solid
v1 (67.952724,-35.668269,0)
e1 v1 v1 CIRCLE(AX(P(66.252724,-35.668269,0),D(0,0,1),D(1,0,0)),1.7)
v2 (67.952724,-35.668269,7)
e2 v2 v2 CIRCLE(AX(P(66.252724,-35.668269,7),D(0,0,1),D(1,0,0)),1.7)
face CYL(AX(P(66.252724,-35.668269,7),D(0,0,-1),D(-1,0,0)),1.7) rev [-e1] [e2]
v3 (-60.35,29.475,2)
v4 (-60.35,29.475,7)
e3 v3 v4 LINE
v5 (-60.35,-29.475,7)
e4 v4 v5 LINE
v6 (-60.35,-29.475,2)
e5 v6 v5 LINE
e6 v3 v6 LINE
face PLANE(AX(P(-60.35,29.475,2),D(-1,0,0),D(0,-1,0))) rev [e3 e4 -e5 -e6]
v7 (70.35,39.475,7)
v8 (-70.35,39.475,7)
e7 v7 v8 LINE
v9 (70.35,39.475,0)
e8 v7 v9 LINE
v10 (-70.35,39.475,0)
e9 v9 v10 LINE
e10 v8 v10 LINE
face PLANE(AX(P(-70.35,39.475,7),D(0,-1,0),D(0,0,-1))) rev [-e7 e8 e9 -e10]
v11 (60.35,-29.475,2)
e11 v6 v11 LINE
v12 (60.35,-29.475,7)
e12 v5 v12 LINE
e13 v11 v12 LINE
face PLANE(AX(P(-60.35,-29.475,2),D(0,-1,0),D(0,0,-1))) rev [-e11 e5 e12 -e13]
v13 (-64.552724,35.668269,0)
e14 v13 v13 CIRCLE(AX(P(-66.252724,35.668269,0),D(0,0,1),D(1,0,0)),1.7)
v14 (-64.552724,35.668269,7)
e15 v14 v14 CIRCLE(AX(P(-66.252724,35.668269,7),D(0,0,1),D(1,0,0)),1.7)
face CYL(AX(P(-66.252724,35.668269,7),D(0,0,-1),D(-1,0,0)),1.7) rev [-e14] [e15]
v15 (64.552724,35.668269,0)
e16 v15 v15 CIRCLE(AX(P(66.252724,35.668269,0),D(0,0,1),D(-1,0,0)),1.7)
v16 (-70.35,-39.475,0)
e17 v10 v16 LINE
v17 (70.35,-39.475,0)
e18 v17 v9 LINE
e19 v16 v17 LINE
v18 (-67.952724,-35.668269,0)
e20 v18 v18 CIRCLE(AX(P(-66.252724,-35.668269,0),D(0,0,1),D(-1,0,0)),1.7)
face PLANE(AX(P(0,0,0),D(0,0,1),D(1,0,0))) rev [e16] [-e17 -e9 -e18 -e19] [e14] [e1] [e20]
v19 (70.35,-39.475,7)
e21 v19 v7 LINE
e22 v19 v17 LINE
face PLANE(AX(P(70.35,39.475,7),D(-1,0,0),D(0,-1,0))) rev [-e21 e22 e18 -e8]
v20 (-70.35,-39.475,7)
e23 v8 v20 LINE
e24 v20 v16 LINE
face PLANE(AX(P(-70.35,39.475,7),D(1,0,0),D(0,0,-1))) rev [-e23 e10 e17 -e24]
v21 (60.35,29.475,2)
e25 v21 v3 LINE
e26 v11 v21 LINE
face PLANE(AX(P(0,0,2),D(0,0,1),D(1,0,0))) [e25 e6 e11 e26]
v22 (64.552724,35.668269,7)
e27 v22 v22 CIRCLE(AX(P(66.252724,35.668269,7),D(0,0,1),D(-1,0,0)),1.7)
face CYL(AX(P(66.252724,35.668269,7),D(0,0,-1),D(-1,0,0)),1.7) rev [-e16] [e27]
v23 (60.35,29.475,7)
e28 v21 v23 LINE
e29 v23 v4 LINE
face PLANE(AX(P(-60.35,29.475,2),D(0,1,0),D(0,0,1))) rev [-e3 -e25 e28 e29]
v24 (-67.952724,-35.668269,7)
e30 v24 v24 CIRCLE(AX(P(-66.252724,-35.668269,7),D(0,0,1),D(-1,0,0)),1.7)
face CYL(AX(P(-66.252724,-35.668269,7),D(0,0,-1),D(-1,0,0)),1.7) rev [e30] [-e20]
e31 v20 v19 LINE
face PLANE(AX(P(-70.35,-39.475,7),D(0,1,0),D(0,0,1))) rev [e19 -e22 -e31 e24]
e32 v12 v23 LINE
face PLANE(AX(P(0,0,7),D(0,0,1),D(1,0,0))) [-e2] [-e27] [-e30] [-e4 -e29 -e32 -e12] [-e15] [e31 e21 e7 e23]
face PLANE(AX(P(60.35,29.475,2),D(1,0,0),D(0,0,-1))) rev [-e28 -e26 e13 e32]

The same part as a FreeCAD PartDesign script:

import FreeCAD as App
import Part
import Sketcher
Q = App.Units.Quantity


def add_polygon(sketch, points):
    """Adds a closed chain of lines whose ends are joined by coincident constraints."""
    first, n = sketch.GeometryCount, len(points)
    for a, b in zip(points, points[1:] + points[:1]):
        sketch.addGeometry(Part.LineSegment(App.Vector(*a, 0), App.Vector(*b, 0)), False)
    for i in range(n):
        sketch.addConstraint(Sketcher.Constraint("Coincident", first + i, 2, first + (i + 1) % n, 1))

doc = App.newDocument("Part")
params = doc.addObject("Spreadsheet::Sheet", "Params")
for row, (alias, value) in enumerate([
    ("sketch1_diameter", "3.4 mm"),
    ("sketch1_width", "140.7 mm"),
    ("sketch1_height", "78.95 mm"),
    ("pad1_length", "7 mm"),
    ("sketch2_width", "120.7 mm"),
    ("sketch2_height", "58.95 mm"),
    ("pocket1_length", "5 mm"),
], start=1):
    params.set(f"A{row}", alias)
    params.set(f"B{row}", "=" + value)
    params.setAlias(f"B{row}", alias)

body = doc.addObject("PartDesign::Body", "Body")

# Sketch on XY plane
sketch1 = body.newObject("Sketcher::SketchObject", "Sketch")
sketch1.AttachmentSupport = (doc.getObject("XY_Plane"), [""])
sketch1.MapMode = "FlatFace"
add_polygon(sketch1, [(-70.35, 39.475), (-70.35, -39.475), (70.35, -39.475), (70.35, 39.475)])  # lines 0-3
sketch1.addGeometry(Part.Circle(App.Vector(-66.252724, -35.668269, 0), App.Vector(0, 0, 1), 1.7), False)  # 4
sketch1.addGeometry(Part.Circle(App.Vector(66.252724, -35.668269, 0), App.Vector(0, 0, 1), 1.7), False)  # 5
sketch1.addGeometry(Part.Circle(App.Vector(-66.252724, 35.668269, 0), App.Vector(0, 0, 1), 1.7), False)  # 6
sketch1.addGeometry(Part.Circle(App.Vector(66.252724, 35.668269, 0), App.Vector(0, 0, 1), 1.7), False)  # 7
sketch1.addConstraint([
    Sketcher.Constraint("Vertical", 0),
    Sketcher.Constraint("Horizontal", 1),
    Sketcher.Constraint("Vertical", 2),
    Sketcher.Constraint("Horizontal", 3),
    Sketcher.Constraint("Equal", 4, 5),
    Sketcher.Constraint("Equal", 5, 6),
    Sketcher.Constraint("Equal", 6, 7),
    Sketcher.Constraint("Symmetric", 5, 3, 6, 3, -1, 1),
    Sketcher.Constraint("Symmetric", 4, 3, 7, 3, -1, 1),
    Sketcher.Constraint("Symmetric", 0, 2, 2, 2, -1, 1),
    Sketcher.Constraint("Symmetric", 4, 3, 5, 3, -2),
    Sketcher.Constraint("Diameter", 4, Q("3.4 mm")),
    Sketcher.Constraint("DistanceX", 1, 1, 1, 2, Q("140.7 mm")),
    Sketcher.Constraint("DistanceY", 0, 2, 0, 1, Q("78.95 mm")),
    Sketcher.Constraint("DistanceY", 4, 3, -1, 1, Q("35.668269 mm")),
    Sketcher.Constraint("DistanceX", 4, 3, -1, 1, Q("66.252724 mm")),
])
sketch1.setExpression("Constraints[15]", "Params.sketch1_diameter")
sketch1.setExpression("Constraints[16]", "Params.sketch1_width")
sketch1.setExpression("Constraints[17]", "Params.sketch1_height")
pad1 = body.newObject("PartDesign::Pad", "Pad")
pad1.Profile = sketch1
pad1.setExpression("Length", "Params.pad1_length")

# Sketch on XY plane
sketch2 = body.newObject("Sketcher::SketchObject", "Sketch001")
sketch2.AttachmentSupport = (doc.getObject("XY_Plane"), [""])
sketch2.MapMode = "FlatFace"
sketch2.AttachmentOffset = App.Placement(App.Vector(0, 0, 7), App.Rotation())
add_polygon(sketch2, [(-60.35, 29.475), (-60.35, -29.475), (60.35, -29.475), (60.35, 29.475)])  # lines 0-3
sketch2.addConstraint([
    Sketcher.Constraint("Vertical", 0),
    Sketcher.Constraint("Horizontal", 1),
    Sketcher.Constraint("Vertical", 2),
    Sketcher.Constraint("Horizontal", 3),
    Sketcher.Constraint("Symmetric", 0, 2, 2, 2, -1, 1),
    Sketcher.Constraint("DistanceX", 1, 1, 1, 2, Q("120.7 mm")),
    Sketcher.Constraint("DistanceY", 0, 2, 0, 1, Q("58.95 mm")),
])
sketch2.setExpression("Constraints[9]", "Params.sketch2_width")
sketch2.setExpression("Constraints[10]", "Params.sketch2_height")
pocket1 = body.newObject("PartDesign::Pocket", "Pocket")
pocket1.Profile = sketch2
pocket1.setExpression("Length", "Params.pocket1_length")

doc.recompute()
